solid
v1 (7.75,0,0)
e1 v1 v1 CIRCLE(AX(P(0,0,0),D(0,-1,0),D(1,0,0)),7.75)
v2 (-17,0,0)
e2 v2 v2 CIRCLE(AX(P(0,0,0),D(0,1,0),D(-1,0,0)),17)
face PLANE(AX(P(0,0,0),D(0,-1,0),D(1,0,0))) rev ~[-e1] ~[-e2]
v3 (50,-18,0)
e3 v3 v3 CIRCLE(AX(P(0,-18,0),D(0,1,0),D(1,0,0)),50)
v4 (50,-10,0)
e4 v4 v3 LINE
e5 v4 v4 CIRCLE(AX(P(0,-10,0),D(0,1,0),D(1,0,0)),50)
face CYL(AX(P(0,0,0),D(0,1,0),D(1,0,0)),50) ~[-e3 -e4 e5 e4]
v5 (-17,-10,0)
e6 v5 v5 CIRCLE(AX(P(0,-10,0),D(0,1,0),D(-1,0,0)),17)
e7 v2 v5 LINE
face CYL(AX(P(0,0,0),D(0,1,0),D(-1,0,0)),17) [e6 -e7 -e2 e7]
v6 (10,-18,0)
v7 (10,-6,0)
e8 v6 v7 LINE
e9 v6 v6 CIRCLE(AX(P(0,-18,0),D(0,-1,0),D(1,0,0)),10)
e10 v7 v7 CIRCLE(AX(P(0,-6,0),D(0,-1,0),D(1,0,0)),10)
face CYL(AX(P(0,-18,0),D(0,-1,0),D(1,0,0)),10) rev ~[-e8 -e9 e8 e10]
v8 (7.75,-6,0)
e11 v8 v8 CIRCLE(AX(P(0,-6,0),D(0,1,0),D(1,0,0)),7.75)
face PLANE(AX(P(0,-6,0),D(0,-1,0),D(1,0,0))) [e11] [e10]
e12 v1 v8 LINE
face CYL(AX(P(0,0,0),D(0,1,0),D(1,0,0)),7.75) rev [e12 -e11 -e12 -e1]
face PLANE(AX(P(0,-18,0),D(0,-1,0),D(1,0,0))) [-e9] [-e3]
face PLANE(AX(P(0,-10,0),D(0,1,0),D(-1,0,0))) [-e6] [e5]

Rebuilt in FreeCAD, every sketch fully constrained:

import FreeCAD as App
import Part
import Sketcher
from FreeCAD import Vector
Q = App.Units.Quantity

doc = App.newDocument("Part")
body = doc.addObject("PartDesign::Body", "Body")

# Sketch on XZ plane
sketch1 = body.newObject("Sketcher::SketchObject", "Sketch")
sketch1.AttachmentSupport = (doc.getObject("XZ_Plane"), [""])
sketch1.MapMode = "FlatFace"
sketch1.addGeometry(Part.Circle(Vector(0, 0, 0), Vector(0, 0, 1), 50), False)
sketch1.addConstraint([
    Sketcher.Constraint("Coincident", 0, 3, -1, 1),
    Sketcher.Constraint("Diameter", 0, Q("100 mm")),
])
pad1 = body.newObject("PartDesign::Pad", "Pad")
pad1.Profile = sketch1
pad1.Length = 43

# Sketch on XZ plane
sketch2 = body.newObject("Sketcher::SketchObject", "Sketch001")
sketch2.AttachmentSupport = (doc.getObject("XZ_Plane"), [""])
sketch2.MapMode = "FlatFace"
sketch2.addGeometry([
    Part.Circle(Vector(0, 0, 0), Vector(0, 0, 1), 144),
    Part.Circle(Vector(0, 0, 0), Vector(0, 0, 1), 17),
], False)
sketch2.addConstraint([
    Sketcher.Constraint("Coincident", 0, 3, -1, 1),
    Sketcher.Constraint("Coincident", 1, 3, -1, 1),
    Sketcher.Constraint("Diameter", 1, Q("34 mm")),
    Sketcher.Constraint("Diameter", 0, Q("288.747986 mm")),
])
pocket1 = body.newObject("PartDesign::Pocket", "Pocket")
pocket1.Profile = sketch2
pocket1.Length = 10
pocket1.Reversed = True

# Sketch on XZ plane
sketch3 = body.newObject("Sketcher::SketchObject", "Sketch002")
sketch3.AttachmentSupport = (doc.getObject("XZ_Plane"), [""])
sketch3.MapMode = "FlatFace"
sketch3.AttachmentOffset = App.Placement(Vector(0, 0, 43), App.Rotation())
sketch3.addGeometry(Part.Circle(Vector(0, 0, 0), Vector(0, 0, 1), 62), False)
sketch3.addConstraint([
    Sketcher.Constraint("Coincident", 0, 3, -1, 1),
    Sketcher.Constraint("Diameter", 0, Q("123.522062 mm")),
])
pocket2 = body.newObject("PartDesign::Pocket", "Pocket001")
pocket2.Profile = sketch3
pocket2.Length = 25

# Sketch on XZ plane
sketch4 = body.newObject("Sketcher::SketchObject", "Sketch003")
sketch4.AttachmentSupport = (doc.getObject("XZ_Plane"), [""])
sketch4.MapMode = "FlatFace"
sketch4.AttachmentOffset = App.Placement(Vector(0, 0, 18), App.Rotation())
sketch4.addGeometry(Part.Circle(Vector(0, 0, 0), Vector(0, 0, 1), 10), False)
sketch4.addConstraint([
    Sketcher.Constraint("Coincident", 0, 3, -1, 1),
    Sketcher.Constraint("Diameter", 0, Q("20 mm")),
])
pocket3 = body.newObject("PartDesign::Pocket", "Pocket002")
pocket3.Profile = sketch4
pocket3.Length = 12

# Sketch on XZ plane
sketch5 = body.newObject("Sketcher::SketchObject", "Sketch004")
sketch5.AttachmentSupport = (doc.getObject("XZ_Plane"), [""])
sketch5.MapMode = "FlatFace"
sketch5.addGeometry(Part.Circle(Vector(0, 0, 0), Vector(0, 0, 1), 8), False)
sketch5.addConstraint([
    Sketcher.Constraint("Coincident", 0, 3, -1, 1),
    Sketcher.Constraint("Diameter", 0, Q("15.5 mm")),
])
pocket4 = body.newObject("PartDesign::Pocket", "Pocket003")
pocket4.Profile = sketch5
pocket4.Length = 179
pocket4.Reversed = True

doc.recompute()
